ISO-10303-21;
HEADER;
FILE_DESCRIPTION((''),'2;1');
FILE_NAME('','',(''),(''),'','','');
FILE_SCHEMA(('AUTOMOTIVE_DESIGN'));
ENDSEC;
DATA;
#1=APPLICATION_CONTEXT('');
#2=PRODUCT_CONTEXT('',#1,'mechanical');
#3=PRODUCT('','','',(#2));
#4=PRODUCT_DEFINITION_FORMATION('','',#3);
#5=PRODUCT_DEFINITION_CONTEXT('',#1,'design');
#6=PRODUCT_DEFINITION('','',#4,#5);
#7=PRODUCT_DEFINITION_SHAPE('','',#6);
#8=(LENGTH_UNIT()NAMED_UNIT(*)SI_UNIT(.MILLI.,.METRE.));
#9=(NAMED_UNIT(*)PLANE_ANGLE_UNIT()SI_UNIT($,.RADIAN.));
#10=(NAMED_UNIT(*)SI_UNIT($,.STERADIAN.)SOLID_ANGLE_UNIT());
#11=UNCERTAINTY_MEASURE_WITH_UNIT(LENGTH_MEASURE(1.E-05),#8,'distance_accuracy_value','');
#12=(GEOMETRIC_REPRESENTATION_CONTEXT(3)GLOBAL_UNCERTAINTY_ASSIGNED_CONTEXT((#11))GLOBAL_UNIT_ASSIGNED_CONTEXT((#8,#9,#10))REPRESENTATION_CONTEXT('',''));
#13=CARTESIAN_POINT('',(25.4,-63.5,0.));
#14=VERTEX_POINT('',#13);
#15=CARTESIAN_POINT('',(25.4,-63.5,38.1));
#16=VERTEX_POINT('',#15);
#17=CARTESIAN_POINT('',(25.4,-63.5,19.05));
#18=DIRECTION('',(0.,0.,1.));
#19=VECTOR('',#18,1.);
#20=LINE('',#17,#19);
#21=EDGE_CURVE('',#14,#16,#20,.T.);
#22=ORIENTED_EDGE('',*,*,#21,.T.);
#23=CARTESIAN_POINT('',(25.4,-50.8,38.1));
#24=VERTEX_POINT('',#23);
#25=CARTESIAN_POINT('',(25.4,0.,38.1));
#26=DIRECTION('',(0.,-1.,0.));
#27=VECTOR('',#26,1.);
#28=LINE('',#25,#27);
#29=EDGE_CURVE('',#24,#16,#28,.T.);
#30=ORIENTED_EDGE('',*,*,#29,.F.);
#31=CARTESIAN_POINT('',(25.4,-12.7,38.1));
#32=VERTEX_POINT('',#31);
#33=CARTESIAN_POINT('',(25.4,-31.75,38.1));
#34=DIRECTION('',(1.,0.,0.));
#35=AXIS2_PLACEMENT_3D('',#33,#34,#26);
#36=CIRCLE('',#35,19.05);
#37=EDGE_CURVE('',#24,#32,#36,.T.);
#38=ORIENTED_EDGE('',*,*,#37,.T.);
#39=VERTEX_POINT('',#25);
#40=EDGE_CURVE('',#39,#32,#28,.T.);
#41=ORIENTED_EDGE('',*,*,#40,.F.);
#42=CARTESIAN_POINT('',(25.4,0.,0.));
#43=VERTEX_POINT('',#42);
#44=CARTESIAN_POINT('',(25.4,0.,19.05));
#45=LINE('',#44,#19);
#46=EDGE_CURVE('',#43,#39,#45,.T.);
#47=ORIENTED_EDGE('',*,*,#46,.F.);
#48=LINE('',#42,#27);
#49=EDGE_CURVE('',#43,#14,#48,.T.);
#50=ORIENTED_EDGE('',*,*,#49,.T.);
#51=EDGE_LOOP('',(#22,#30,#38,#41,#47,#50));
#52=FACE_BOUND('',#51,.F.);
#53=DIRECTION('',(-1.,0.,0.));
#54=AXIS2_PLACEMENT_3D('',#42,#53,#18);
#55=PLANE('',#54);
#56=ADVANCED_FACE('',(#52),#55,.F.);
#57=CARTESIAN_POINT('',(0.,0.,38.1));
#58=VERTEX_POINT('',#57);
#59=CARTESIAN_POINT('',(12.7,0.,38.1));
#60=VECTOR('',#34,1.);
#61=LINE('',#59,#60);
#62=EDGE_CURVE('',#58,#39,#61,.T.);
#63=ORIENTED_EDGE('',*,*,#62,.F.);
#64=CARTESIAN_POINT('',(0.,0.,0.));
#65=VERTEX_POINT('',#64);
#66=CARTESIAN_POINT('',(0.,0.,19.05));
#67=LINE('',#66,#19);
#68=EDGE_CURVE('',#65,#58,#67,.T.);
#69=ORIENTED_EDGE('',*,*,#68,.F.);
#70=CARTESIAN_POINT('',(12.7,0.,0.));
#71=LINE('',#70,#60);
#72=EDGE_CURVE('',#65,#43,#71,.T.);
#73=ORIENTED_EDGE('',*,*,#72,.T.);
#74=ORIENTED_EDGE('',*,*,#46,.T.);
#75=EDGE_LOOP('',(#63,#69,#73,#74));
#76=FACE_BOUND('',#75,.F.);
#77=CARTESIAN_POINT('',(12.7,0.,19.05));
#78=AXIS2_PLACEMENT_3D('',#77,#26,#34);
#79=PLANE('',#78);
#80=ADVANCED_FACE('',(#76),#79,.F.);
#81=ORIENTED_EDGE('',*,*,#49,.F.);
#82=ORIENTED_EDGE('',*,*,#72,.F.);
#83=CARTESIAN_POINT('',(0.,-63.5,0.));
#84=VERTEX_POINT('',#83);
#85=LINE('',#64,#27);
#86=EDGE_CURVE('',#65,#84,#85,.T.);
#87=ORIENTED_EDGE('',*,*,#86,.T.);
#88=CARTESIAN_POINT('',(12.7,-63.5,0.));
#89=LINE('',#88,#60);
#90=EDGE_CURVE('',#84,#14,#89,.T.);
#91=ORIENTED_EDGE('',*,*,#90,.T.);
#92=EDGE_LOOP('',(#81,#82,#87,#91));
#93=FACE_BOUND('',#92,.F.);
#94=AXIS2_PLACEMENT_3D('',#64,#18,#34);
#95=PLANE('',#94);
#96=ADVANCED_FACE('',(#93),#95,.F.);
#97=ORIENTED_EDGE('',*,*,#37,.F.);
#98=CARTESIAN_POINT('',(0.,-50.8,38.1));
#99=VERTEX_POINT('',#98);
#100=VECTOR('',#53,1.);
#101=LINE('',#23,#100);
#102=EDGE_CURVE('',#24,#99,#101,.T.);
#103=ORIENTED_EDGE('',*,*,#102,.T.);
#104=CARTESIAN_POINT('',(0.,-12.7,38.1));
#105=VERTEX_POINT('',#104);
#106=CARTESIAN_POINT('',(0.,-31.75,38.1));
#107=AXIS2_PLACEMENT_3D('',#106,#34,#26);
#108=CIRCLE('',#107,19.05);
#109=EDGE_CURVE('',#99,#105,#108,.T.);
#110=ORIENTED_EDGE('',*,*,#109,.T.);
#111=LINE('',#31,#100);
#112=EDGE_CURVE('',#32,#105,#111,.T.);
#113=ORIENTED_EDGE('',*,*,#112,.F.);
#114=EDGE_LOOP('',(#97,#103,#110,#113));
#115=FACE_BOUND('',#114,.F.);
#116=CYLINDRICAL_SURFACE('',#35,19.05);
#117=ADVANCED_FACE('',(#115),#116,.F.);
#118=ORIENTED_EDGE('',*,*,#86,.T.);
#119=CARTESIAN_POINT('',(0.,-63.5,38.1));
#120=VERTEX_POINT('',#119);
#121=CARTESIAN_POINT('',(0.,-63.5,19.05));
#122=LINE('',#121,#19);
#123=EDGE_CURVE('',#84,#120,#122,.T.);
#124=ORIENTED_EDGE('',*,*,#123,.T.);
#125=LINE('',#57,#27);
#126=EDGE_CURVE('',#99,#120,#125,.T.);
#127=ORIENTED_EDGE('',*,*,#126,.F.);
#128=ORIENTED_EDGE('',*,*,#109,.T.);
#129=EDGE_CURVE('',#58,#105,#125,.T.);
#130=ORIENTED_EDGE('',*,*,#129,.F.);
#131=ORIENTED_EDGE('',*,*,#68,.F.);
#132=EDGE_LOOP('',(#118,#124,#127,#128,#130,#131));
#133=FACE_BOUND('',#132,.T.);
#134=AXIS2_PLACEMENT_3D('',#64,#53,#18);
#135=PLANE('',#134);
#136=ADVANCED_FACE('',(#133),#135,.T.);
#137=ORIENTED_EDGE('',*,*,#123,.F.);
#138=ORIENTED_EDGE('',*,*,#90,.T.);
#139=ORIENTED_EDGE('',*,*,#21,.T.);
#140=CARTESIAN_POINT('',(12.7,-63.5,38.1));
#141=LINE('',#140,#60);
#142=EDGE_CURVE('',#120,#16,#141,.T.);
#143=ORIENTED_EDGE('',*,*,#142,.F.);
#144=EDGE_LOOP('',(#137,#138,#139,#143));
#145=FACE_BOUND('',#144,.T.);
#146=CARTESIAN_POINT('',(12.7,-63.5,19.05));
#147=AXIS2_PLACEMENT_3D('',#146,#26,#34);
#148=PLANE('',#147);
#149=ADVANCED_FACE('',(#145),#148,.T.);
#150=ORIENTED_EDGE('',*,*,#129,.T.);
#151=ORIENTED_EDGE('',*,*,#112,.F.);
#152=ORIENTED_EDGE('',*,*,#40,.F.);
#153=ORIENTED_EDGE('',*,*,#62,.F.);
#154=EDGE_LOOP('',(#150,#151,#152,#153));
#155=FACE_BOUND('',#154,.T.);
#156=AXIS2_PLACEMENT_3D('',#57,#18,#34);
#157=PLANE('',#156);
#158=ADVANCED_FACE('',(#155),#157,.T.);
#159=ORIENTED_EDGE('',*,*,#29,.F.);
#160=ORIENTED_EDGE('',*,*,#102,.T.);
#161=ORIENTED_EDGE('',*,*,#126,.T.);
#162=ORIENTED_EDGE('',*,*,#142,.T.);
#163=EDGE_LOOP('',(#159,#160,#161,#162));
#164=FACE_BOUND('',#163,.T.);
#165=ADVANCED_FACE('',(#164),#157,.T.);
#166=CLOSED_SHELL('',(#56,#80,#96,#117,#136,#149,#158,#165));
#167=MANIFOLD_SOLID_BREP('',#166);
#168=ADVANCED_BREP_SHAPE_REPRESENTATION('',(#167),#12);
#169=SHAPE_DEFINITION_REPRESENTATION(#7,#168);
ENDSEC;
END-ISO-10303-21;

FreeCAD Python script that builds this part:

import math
import FreeCAD as App
import Part
import Sketcher
Q = App.Units.Quantity

doc = App.newDocument("Part")
params = doc.addObject("Spreadsheet::Sheet", "Params")
for row, (alias, value) in enumerate([
    ("sketch1_width", "1 in"),
    ("sketch1_height", "1.5 in"),
    ("pad1_length", "2.5 in"),
    ("sketch2_radius", "0.75 in"),
    ("pocket1_length", "1 in"),
], start=1):
    params.set(f"A{row}", alias)
    params.set(f"B{row}", "=" + value)
    params.setAlias(f"B{row}", alias)

body = doc.addObject("PartDesign::Body", "Body")

# Sketch on XZ plane
sketch1 = body.newObject("Sketcher::SketchObject", "Sketch")
sketch1.AttachmentSupport = (doc.getObject("XZ_Plane"), [""])
sketch1.MapMode = "FlatFace"
sketch1.addGeometry(Part.LineSegment(App.Vector(0, 38.1, 0), App.Vector(0, 0, 0)), False)
sketch1.addGeometry(Part.LineSegment(App.Vector(0, 0, 0), App.Vector(25.4, 0, 0)), False)
sketch1.addGeometry(Part.LineSegment(App.Vector(25.4, 0, 0), App.Vector(25.4, 38.1, 0)), False)
sketch1.addGeometry(Part.LineSegment(App.Vector(25.4, 38.1, 0), App.Vector(0, 38.1, 0)), False)
sketch1.addConstraint(Sketcher.Constraint("Coincident", 0, 2, 1, 1))
sketch1.addConstraint(Sketcher.Constraint("Coincident", 1, 2, 2, 1))
sketch1.addConstraint(Sketcher.Constraint("Coincident", 2, 2, 3, 1))
sketch1.addConstraint(Sketcher.Constraint("Coincident", 3, 2, 0, 1))
sketch1.addConstraint(Sketcher.Constraint("Vertical", 0))
sketch1.addConstraint(Sketcher.Constraint("Horizontal", 1))
sketch1.addConstraint(Sketcher.Constraint("Vertical", 2))
sketch1.addConstraint(Sketcher.Constraint("Horizontal", 3))
sketch1.addConstraint(Sketcher.Constraint("Coincident", 0, 2, -1, 1))
sketch1.addConstraint(Sketcher.Constraint("DistanceX", 1, 1, 1, 2, Q("1 in")))
sketch1.addConstraint(Sketcher.Constraint("DistanceY", 0, 2, 0, 1, Q("1.5 in")))
sketch1.setExpression("Constraints[9]", "Params.sketch1_width")
sketch1.setExpression("Constraints[10]", "Params.sketch1_height")
pad1 = body.newObject("PartDesign::Pad", "Pad")
pad1.Profile = sketch1
pad1.setExpression("Length", "Params.pad1_length")

# Sketch on YZ plane
sketch2 = body.newObject("Sketcher::SketchObject", "Sketch001")
sketch2.AttachmentSupport = (doc.getObject("YZ_Plane"), [""])
sketch2.MapMode = "FlatFace"
sketch2.AttachmentOffset = App.Placement(App.Vector(0, 0, 1 * 25.4), App.Rotation())
sketch2.addGeometry(Part.ArcOfCircle(Part.Circle(App.Vector(-31.75, 38.1, 0), App.Vector(0, 0, 1), 19.05), math.radians(180), math.radians(360)), False)
sketch2.addGeometry(Part.LineSegment(App.Vector(-12.7, 38.1, 0), App.Vector(-50.8, 38.1, 0)), False)
sketch2.addConstraint(Sketcher.Constraint("Coincident", 0, 1, 1, 2))
sketch2.addConstraint(Sketcher.Constraint("Coincident", 1, 1, 0, 2))
sketch2.addConstraint(Sketcher.Constraint("Horizontal", 1))
sketch2.addConstraint(Sketcher.Constraint("Radius", 0, Q("0.75 in")))
sketch2.addConstraint(Sketcher.Constraint("DistanceX", 0, 1, -1, 1, Q("2 in")))
sketch2.addConstraint(Sketcher.Constraint("DistanceY", -1, 1, 0, 3, Q("1.5 in")))
sketch2.addConstraint(Sketcher.Constraint("DistanceY", -1, 1, 0, 1, Q("1.5 in")))
sketch2.setExpression("Constraints[3]", "Params.sketch2_radius")
pocket1 = body.newObject("PartDesign::Pocket", "Pocket")
pocket1.Profile = sketch2
pocket1.setExpression("Length", "Params.pocket1_length")

doc.recompute()
